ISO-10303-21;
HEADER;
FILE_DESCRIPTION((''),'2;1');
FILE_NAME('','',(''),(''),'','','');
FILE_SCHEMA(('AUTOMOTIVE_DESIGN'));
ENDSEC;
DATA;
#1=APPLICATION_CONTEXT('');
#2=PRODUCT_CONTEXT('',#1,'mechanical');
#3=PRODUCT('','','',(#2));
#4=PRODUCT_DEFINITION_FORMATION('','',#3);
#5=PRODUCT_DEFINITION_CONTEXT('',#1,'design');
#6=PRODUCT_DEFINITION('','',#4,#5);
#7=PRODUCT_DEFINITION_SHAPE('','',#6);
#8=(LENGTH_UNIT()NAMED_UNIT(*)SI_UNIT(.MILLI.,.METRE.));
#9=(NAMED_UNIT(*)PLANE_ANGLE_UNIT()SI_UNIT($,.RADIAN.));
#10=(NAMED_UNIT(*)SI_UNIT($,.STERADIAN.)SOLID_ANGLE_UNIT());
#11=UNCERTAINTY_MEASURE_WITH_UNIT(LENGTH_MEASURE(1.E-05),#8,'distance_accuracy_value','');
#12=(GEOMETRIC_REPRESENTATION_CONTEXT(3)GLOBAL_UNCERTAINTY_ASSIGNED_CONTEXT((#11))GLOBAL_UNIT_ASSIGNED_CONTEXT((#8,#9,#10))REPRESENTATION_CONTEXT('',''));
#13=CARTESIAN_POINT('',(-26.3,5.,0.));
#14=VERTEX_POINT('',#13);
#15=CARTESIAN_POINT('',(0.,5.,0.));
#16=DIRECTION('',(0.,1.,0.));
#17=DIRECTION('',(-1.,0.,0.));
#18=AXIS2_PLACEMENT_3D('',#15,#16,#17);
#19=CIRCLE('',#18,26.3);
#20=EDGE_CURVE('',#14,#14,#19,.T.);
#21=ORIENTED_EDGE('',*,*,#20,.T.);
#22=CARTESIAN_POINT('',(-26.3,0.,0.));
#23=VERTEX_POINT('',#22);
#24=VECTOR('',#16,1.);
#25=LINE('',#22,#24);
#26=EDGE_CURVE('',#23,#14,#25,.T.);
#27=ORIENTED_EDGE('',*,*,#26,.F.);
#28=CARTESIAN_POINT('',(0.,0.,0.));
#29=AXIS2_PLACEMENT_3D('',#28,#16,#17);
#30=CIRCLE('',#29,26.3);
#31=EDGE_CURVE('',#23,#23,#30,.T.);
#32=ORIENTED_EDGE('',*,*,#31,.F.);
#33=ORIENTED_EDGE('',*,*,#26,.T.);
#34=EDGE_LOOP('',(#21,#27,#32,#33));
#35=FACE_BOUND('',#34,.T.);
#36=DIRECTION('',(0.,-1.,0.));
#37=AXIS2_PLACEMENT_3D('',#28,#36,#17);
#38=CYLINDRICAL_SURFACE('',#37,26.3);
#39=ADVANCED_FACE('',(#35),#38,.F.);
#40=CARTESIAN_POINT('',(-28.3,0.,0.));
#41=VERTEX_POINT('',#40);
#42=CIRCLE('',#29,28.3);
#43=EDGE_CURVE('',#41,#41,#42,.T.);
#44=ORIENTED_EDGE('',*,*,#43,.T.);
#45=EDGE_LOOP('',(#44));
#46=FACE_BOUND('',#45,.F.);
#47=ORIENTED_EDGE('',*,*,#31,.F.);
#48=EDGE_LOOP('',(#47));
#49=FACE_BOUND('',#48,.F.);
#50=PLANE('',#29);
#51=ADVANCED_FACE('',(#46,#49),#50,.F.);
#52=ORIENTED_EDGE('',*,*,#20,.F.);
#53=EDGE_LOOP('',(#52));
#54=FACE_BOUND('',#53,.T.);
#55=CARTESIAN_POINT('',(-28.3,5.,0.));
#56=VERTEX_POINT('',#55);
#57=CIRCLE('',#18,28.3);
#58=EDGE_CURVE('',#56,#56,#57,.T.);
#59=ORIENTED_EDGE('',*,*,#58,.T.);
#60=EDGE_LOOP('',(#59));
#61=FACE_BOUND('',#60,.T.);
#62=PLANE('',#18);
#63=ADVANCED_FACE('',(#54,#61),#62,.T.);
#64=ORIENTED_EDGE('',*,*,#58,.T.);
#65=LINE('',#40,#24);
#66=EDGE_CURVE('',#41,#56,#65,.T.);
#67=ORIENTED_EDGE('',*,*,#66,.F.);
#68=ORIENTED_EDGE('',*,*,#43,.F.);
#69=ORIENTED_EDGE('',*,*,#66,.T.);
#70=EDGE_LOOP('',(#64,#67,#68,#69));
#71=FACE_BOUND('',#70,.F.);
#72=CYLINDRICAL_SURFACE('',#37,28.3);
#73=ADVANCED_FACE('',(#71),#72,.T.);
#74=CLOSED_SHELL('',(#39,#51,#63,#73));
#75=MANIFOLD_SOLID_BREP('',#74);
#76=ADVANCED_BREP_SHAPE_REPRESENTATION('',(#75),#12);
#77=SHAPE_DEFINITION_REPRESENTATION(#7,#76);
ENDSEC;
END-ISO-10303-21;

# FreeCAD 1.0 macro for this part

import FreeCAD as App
import Part
import Sketcher

V = App.Vector
Q = App.Units.Quantity

doc = App.newDocument("Part")
body = doc.addObject("PartDesign::Body", "Body")

# Sketch on XZ plane
sketch1 = doc.addObject("Sketcher::SketchObject", "Sketch")
body.addObject(sketch1)
sketch1.AttachmentSupport = (doc.XZ_Plane, [""])
sketch1.MapMode = "FlatFace"
sketch1.addGeometry(Part.Circle(V(0, 0, 0), V(0, 0, 1), 28), False)
sketch1.addGeometry(Part.Circle(V(0, 0, 0), V(0, 0, 1), 26), False)
sketch1.addConstraint(Sketcher.Constraint("Coincident", 0, 3, -1, 1))
sketch1.addConstraint(Sketcher.Constraint("Coincident", 1, 3, -1, 1))
sketch1.addConstraint(Sketcher.Constraint("Diameter", 1, Q("52.6 mm")))
sketch1.addConstraint(Sketcher.Constraint("Diameter", 0, Q("56.6 mm")))
pad1 = doc.addObject("PartDesign::Pad", "Pad")
body.addObject(pad1)
pad1.Profile = sketch1
pad1.Length = 5
pad1.Reversed = True

doc.recompute()
